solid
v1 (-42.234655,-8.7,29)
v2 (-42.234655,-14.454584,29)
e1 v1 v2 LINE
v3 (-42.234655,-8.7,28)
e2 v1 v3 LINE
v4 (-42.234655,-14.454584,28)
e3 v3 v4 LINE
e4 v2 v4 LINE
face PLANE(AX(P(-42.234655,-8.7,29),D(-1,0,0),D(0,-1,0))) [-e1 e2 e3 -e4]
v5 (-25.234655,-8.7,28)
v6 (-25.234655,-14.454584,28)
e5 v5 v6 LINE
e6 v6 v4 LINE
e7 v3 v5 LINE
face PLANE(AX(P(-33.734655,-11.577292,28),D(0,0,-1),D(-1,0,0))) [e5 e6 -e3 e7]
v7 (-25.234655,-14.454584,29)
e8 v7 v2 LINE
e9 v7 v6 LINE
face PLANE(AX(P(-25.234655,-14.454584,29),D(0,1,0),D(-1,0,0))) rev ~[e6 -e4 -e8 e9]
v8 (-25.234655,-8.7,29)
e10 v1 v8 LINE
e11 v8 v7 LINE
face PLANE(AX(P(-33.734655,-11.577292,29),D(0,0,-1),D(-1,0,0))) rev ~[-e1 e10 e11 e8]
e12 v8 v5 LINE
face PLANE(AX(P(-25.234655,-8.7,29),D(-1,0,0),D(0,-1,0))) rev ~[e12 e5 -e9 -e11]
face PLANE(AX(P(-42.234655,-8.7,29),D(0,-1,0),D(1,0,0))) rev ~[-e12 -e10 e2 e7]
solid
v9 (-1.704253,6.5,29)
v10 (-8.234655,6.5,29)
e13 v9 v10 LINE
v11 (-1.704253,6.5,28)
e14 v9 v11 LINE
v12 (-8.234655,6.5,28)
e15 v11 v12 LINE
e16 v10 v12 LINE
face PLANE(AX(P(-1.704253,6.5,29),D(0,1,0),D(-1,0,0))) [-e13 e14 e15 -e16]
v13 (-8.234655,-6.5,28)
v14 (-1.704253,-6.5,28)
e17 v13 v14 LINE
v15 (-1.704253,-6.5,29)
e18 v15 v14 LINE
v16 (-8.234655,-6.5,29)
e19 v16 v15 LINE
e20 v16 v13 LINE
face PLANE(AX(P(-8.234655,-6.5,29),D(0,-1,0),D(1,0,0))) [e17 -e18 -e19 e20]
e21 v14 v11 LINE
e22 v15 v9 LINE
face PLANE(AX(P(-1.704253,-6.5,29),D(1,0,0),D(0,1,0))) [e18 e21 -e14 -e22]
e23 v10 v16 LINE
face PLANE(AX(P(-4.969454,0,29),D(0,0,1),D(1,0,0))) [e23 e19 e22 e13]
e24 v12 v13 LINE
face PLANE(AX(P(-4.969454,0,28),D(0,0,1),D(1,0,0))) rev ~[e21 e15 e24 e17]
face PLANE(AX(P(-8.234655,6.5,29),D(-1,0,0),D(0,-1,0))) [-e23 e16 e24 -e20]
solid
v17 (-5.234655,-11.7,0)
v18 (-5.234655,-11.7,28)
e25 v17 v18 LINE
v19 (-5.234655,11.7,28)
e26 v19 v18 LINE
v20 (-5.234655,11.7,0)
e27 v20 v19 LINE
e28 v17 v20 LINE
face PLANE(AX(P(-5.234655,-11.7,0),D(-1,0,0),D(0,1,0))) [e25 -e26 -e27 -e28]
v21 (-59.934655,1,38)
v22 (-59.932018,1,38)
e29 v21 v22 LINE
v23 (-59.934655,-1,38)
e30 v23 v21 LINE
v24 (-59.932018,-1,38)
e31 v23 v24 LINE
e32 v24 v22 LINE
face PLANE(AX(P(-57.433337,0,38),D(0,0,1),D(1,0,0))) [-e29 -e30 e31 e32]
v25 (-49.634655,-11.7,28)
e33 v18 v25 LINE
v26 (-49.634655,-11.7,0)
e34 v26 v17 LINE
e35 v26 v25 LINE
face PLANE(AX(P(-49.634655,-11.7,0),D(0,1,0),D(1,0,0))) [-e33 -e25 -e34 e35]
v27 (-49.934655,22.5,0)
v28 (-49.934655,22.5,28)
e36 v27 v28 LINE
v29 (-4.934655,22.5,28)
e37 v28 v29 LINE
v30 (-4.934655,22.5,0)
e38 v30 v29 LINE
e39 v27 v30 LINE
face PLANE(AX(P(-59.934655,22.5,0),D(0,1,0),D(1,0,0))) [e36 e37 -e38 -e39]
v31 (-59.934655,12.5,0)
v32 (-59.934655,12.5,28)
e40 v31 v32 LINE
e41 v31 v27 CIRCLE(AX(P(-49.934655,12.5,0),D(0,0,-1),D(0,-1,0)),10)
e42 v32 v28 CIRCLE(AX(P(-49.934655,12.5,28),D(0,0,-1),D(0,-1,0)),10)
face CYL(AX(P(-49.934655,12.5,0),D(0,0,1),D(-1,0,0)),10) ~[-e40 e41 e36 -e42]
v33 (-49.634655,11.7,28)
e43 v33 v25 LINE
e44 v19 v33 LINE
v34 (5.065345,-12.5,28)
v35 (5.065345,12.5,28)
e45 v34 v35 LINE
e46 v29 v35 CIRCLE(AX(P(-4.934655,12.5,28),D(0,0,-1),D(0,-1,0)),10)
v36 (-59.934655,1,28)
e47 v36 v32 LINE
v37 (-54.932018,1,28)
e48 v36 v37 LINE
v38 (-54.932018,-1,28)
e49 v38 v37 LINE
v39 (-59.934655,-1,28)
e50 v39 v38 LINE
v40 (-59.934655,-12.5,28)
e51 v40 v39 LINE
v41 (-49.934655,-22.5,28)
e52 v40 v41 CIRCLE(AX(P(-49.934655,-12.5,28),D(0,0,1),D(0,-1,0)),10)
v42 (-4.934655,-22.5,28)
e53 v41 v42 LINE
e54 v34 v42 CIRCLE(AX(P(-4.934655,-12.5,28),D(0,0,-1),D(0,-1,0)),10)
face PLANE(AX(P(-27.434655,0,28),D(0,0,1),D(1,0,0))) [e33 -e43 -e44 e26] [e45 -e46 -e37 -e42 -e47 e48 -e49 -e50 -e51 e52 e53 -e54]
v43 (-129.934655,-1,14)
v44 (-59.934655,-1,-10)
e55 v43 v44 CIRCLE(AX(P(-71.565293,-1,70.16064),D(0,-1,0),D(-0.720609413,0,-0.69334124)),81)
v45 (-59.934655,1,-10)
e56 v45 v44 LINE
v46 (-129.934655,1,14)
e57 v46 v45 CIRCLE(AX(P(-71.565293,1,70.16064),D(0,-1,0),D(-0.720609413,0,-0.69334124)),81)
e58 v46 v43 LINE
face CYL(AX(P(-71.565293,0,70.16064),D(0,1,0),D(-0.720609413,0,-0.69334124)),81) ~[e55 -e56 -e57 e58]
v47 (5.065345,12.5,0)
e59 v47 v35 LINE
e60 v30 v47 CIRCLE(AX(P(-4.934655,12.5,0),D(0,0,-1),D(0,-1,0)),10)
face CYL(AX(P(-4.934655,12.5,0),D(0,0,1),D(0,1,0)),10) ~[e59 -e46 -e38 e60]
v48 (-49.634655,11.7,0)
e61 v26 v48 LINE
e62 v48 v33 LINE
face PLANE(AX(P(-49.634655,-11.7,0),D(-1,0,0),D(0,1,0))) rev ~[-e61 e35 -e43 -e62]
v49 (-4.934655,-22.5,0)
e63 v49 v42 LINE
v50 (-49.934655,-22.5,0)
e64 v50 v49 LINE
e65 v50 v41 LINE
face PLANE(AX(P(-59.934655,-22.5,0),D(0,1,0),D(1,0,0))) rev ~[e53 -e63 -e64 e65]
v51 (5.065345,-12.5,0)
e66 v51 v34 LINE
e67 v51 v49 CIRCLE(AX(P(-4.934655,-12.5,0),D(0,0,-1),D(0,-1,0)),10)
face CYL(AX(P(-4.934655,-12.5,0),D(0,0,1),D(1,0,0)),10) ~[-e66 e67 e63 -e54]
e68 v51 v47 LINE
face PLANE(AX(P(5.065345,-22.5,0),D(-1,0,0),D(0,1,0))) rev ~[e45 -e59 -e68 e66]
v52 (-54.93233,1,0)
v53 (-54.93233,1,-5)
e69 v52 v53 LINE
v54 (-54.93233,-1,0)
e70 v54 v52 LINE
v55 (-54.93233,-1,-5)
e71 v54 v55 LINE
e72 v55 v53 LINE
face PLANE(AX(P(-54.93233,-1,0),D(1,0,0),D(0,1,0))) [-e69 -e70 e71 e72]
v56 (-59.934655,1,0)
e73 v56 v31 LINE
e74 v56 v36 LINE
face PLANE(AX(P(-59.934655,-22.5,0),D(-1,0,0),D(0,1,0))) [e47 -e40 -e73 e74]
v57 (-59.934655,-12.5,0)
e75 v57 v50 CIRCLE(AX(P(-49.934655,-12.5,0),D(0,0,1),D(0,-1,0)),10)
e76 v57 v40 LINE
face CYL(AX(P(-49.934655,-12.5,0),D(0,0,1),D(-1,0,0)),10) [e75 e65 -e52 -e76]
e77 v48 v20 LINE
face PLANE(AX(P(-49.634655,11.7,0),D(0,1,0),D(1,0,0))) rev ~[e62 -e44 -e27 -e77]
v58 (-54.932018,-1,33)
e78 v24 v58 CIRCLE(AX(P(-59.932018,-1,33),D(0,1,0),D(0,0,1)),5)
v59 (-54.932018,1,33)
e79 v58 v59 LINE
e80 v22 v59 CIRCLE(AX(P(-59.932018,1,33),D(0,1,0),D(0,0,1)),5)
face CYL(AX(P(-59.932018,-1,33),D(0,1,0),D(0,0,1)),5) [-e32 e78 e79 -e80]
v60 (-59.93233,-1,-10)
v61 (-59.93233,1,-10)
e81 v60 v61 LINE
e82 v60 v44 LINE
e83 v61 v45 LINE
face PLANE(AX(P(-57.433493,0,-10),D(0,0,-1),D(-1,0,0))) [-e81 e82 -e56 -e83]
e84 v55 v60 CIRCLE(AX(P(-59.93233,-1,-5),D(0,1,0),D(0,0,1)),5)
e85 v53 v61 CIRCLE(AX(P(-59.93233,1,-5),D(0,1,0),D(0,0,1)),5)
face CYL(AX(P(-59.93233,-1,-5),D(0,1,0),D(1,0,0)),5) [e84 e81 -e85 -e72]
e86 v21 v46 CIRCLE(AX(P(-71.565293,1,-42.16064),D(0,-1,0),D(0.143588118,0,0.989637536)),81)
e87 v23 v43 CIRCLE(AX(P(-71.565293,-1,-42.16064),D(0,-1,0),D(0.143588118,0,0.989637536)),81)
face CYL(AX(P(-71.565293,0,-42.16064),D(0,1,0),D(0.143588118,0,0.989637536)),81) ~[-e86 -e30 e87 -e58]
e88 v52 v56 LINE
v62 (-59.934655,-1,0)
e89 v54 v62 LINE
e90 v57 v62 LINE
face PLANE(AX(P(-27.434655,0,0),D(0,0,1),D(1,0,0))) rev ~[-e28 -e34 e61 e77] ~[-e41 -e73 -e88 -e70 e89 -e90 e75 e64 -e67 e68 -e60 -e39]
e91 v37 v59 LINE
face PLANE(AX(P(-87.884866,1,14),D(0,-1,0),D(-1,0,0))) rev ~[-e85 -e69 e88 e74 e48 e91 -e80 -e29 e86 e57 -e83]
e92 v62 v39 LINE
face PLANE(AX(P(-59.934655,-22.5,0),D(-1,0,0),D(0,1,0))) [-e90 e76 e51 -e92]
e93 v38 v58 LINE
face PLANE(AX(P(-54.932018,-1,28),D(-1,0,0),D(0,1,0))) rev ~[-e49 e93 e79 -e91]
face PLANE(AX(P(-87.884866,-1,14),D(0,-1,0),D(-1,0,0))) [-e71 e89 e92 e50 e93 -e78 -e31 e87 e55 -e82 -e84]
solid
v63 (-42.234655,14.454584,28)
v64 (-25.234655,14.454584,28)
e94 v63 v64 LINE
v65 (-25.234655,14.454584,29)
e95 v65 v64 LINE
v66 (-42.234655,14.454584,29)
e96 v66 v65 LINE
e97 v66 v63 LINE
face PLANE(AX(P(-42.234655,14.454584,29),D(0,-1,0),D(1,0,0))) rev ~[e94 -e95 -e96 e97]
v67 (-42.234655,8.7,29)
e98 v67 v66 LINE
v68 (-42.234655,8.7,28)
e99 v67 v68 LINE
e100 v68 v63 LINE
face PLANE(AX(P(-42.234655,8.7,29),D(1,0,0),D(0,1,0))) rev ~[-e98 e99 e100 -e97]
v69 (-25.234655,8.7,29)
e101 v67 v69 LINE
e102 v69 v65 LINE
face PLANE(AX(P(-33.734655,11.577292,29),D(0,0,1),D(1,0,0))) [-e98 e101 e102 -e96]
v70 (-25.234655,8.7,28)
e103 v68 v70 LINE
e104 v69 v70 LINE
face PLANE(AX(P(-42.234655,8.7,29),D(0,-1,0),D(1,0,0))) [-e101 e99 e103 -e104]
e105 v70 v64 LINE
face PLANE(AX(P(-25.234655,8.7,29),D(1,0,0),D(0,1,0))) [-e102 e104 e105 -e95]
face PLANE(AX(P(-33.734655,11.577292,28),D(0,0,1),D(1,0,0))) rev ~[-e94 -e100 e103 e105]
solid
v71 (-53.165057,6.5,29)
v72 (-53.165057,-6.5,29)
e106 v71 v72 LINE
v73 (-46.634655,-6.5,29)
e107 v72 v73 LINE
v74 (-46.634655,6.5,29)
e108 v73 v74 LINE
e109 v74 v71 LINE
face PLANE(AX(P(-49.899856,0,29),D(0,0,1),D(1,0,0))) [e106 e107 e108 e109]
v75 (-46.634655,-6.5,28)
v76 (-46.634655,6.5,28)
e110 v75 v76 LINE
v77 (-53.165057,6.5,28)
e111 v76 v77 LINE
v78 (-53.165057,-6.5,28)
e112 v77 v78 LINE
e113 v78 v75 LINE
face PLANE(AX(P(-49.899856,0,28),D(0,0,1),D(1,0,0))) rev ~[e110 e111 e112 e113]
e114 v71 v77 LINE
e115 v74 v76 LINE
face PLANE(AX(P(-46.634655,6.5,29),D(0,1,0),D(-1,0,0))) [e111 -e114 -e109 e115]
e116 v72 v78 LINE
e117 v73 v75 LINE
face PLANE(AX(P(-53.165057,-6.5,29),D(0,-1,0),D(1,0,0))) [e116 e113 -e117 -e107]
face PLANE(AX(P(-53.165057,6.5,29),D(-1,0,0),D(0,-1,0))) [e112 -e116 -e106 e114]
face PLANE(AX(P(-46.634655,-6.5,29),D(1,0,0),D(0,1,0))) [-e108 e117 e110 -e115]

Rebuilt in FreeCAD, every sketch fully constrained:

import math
import FreeCAD as App
import Part
import Sketcher
from FreeCAD import Vector
Q = App.Units.Quantity


def edges_at(feature, points):
    """Names of the edges that pass closest to the given points."""
    edges = feature.Shape.Edges
    near = lambda p: min(range(len(edges)), key=lambda i: edges[i].distToShape(Part.Vertex(*p))[0])
    return sorted({f"Edge{near(p) + 1}" for p in points})


def add_polygon(sketch, points):
    """Adds a closed chain of lines whose ends are joined by coincident constraints."""
    first, n = sketch.GeometryCount, len(points)
    for a, b in zip(points, points[1:] + points[:1]):
        sketch.addGeometry(Part.LineSegment(App.Vector(*a, 0), App.Vector(*b, 0)), False)
    for i in range(n):
        sketch.addConstraint(Sketcher.Constraint("Coincident", first + i, 2, first + (i + 1) % n, 1))

doc = App.newDocument("Part")
body = doc.addObject("PartDesign::Body", "Body")

# Sketch on XY plane
sketch1 = doc.addObject("Sketcher::SketchObject", "Sketch")
body.addObject(sketch1)
sketch1.AttachmentSupport = (doc.XY_Plane, [""])
sketch1.MapMode = "FlatFace"
add_polygon(sketch1, [(-59.934655, 22.5), (-59.934655, -22.5), (5.065345, -22.5), (5.065345, 22.5)])  # lines 0-3
sketch1.addConstraint([
    Sketcher.Constraint("Vertical", 0),
    Sketcher.Constraint("Horizontal", 1),
    Sketcher.Constraint("Vertical", 2),
    Sketcher.Constraint("Horizontal", 3),
    Sketcher.Constraint("DistanceX", 1, 1, 1, 2, Q("65 mm")),
    Sketcher.Constraint("DistanceY", 0, 2, 0, 1, Q("45 mm")),
    Sketcher.Constraint("DistanceY", 0, 2, -1, 1, Q("22.5 mm")),
    Sketcher.Constraint("DistanceX", 0, 2, -1, 1, Q("59.934655 mm")),
])
pad1 = doc.addObject("PartDesign::Pad", "Pad")
body.addObject(pad1)
pad1.Profile = sketch1
pad1.Length = 28

# Sketch on XY plane
sketch2 = doc.addObject("Sketcher::SketchObject", "Sketch001")
body.addObject(sketch2)
sketch2.AttachmentSupport = (doc.XY_Plane, [""])
sketch2.MapMode = "FlatFace"
add_polygon(sketch2, [(-49.634655, 11.7), (-49.634655, -11.7), (-5.234655, -11.7), (-5.234655, 11.7)])  # lines 0-3
sketch2.addConstraint([
    Sketcher.Constraint("Vertical", 0),
    Sketcher.Constraint("Horizontal", 1),
    Sketcher.Constraint("Vertical", 2),
    Sketcher.Constraint("Horizontal", 3),
    Sketcher.Constraint("DistanceX", 1, 1, 1, 2, Q("44.4 mm")),
    Sketcher.Constraint("DistanceY", 0, 2, 0, 1, Q("23.4 mm")),
    Sketcher.Constraint("DistanceY", 0, 2, -1, 1, Q("11.7 mm")),
    Sketcher.Constraint("DistanceX", 0, 2, -1, 1, Q("49.634655 mm")),
])
pocket1 = doc.addObject("PartDesign::Pocket", "Pocket")
body.addObject(pocket1)
pocket1.Profile = sketch2
pocket1.Length = 39
pocket1.Reversed = True
doc.recompute()

fillet = doc.addObject("PartDesign::Fillet", "Fillet")
body.addObject(fillet)
fillet.Base = (pocket1, edges_at(pocket1, [(-59.935, -22.5, 14)]))
fillet.Radius = 10
doc.recompute()

fillet2 = doc.addObject("PartDesign::Fillet", "Fillet001")
body.addObject(fillet2)
fillet2.Base = (fillet, edges_at(fillet, [(-59.935, 22.5, 14)]))
fillet2.Radius = 10
doc.recompute()

fillet3 = doc.addObject("PartDesign::Fillet", "Fillet002")
body.addObject(fillet3)
fillet3.Base = (fillet2, edges_at(fillet2, [(5.065, 22.5, 14)]))
fillet3.Radius = 10
doc.recompute()

fillet4 = doc.addObject("PartDesign::Fillet", "Fillet003")
body.addObject(fillet4)
fillet4.Base = (fillet3, edges_at(fillet3, [(5.065, -22.5, 14)]))
fillet4.Radius = 10

# Sketch on XY plane
sketch3 = doc.addObject("Sketcher::SketchObject", "Sketch002")
body.addObject(sketch3)
sketch3.AttachmentSupport = (doc.XY_Plane, [""])
sketch3.MapMode = "FlatFace"
sketch3.AttachmentOffset = App.Placement(Vector(0, 0, 28), App.Rotation())
add_polygon(sketch3, [(-59.934655, 1), (-59.934655, -1), (-54.932018, -1), (-54.932018, 1)])  # lines 0-3
sketch3.addConstraint([
    Sketcher.Constraint("Vertical", 0),
    Sketcher.Constraint("Horizontal", 1),
    Sketcher.Constraint("Vertical", 2),
    Sketcher.Constraint("Horizontal", 3),
    Sketcher.Constraint("DistanceY", 0, 2, 0, 1, Q("2 mm")),
    Sketcher.Constraint("DistanceY", 0, 2, -1, 1, Q("1 mm")),
    Sketcher.Constraint("DistanceX", 1, 1, 1, 2, Q("5.002637 mm")),
    Sketcher.Constraint("DistanceX", 0, 2, -1, 1, Q("59.934655 mm")),
])
pad2 = doc.addObject("PartDesign::Pad", "Pad001")
body.addObject(pad2)
pad2.Profile = sketch3
pad2.Length = 10

# Sketch on XY plane
sketch4 = doc.addObject("Sketcher::SketchObject", "Sketch003")
body.addObject(sketch4)
sketch4.AttachmentSupport = (doc.XY_Plane, [""])
sketch4.MapMode = "FlatFace"
add_polygon(sketch4, [(-54.93233, 1), (-54.93233, -1), (-59.934655, -1), (-59.934655, 1)])  # lines 0-3
sketch4.addConstraint([
    Sketcher.Constraint("Vertical", 0),
    Sketcher.Constraint("Horizontal", 1),
    Sketcher.Constraint("Vertical", 2),
    Sketcher.Constraint("Horizontal", 3),
    Sketcher.Constraint("DistanceY", 0, 2, 0, 1, Q("2 mm")),
    Sketcher.Constraint("DistanceY", 0, 2, -1, 1, Q("1 mm")),
    Sketcher.Constraint("DistanceX", 1, 2, 1, 1, Q("5.002325 mm")),
    Sketcher.Constraint("DistanceX", 0, 2, -1, 1, Q("54.93233 mm")),
])
pad3 = doc.addObject("PartDesign::Pad", "Pad002")
body.addObject(pad3)
pad3.Profile = sketch4
pad3.Length = 10
pad3.Reversed = True

# Sketch on XZ plane
sketch5 = doc.addObject("Sketcher::SketchObject", "Sketch004")
body.addObject(sketch5)
sketch5.AttachmentSupport = (doc.XZ_Plane, [""])
sketch5.MapMode = "FlatFace"
sketch5.addGeometry([
    Part.LineSegment(Vector(-59.934655, 38, 0), Vector(-59.934655, -10, 0)),
    Part.ArcOfCircle(Part.Circle(Vector(-71.565293, 70.16064, 0), Vector(0, 0, 1), 81), math.radians(-136.104818), math.radians(-81.744471)),
    Part.ArcOfCircle(Part.Circle(Vector(-71.565293, -42.16064, 0), Vector(0, 0, 1), 81), math.radians(81.744471), math.radians(136.104818)),
], False)
sketch5.addConstraint([
    Sketcher.Constraint("Coincident", 0, 2, 1, 2),
    Sketcher.Constraint("Coincident", 1, 1, 2, 2),
    Sketcher.Constraint("Coincident", 2, 1, 0, 1),
    Sketcher.Constraint("Vertical", 0),
    Sketcher.Constraint("Equal", 1, 2),
    Sketcher.Constraint("Vertical", 1, 3, 2, 3),
    Sketcher.Constraint("Radius", 1, Q("81 mm")),
    Sketcher.Constraint("DistanceY", 0, 2, 0, 1, Q("48 mm")),
    Sketcher.Constraint("DistanceY", 0, 2, -1, 1, Q("10 mm")),
    Sketcher.Constraint("DistanceX", 1, 1, 0, 2, Q("70 mm")),
    Sketcher.Constraint("DistanceX", 1, 3, -1, 1, Q("71.565293 mm")),
])
pad4 = doc.addObject("PartDesign::Pad", "Pad003")
body.addObject(pad4)
pad4.Profile = sketch5
pad4.Type = "TwoLengths"
pad4.Length = 1
pad4.Length2 = 1
pad4.Reversed = True
doc.recompute()

fillet5 = doc.addObject("PartDesign::Fillet", "Fillet004")
body.addObject(fillet5)
fillet5.Base = (pad4, edges_at(pad4, [(-54.932, 0, -10)]))
fillet5.Radius = 5
doc.recompute()

fillet6 = doc.addObject("PartDesign::Fillet", "Fillet005")
body.addObject(fillet6)
fillet6.Base = (fillet5, edges_at(fillet5, [(-54.932, 0, 38)]))
fillet6.Radius = 5
body2 = doc.addObject("PartDesign::Body", "Body001")

# Sketch on XY plane
sketch6 = doc.addObject("Sketcher::SketchObject", "Sketch005")
body2.addObject(sketch6)
sketch6.AttachmentSupport = (doc.getObject("XY_Plane001"), [""])
sketch6.MapMode = "FlatFace"
sketch6.AttachmentOffset = App.Placement(Vector(0, 0, 29), App.Rotation())
add_polygon(sketch6, [(-53.165057, 6.5), (-53.165057, -6.5), (-46.634655, -6.5), (-46.634655, 6.5)])  # lines 0-3
sketch6.addConstraint([
    Sketcher.Constraint("Vertical", 0),
    Sketcher.Constraint("Horizontal", 1),
    Sketcher.Constraint("Vertical", 2),
    Sketcher.Constraint("Horizontal", 3),
    Sketcher.Constraint("DistanceY", 0, 2, 0, 1, Q("13 mm")),
    Sketcher.Constraint("DistanceY", 0, 2, -1, 1, Q("6.5 mm")),
    Sketcher.Constraint("DistanceX", 1, 1, 1, 2, Q("6.530402 mm")),
    Sketcher.Constraint("DistanceX", 0, 2, -1, 1, Q("53.165057 mm")),
])
pad5 = doc.addObject("PartDesign::Pad", "Pad004")
body2.addObject(pad5)
pad5.Profile = sketch6
pad5.Length = 1
pad5.Reversed = True
body3 = doc.addObject("PartDesign::Body", "Body002")

# Sketch on XY plane
sketch7 = doc.addObject("Sketcher::SketchObject", "Sketch006")
body3.addObject(sketch7)
sketch7.AttachmentSupport = (doc.getObject("XY_Plane002"), [""])
sketch7.MapMode = "FlatFace"
sketch7.AttachmentOffset = App.Placement(Vector(0, 0, 29), App.Rotation())
add_polygon(sketch7, [(-42.234655, -8.7), (-42.234655, -14.454584), (-25.234655, -14.454584), (-25.234655, -8.7)])  # lines 0-3
sketch7.addConstraint([
    Sketcher.Constraint("Vertical", 0),
    Sketcher.Constraint("Horizontal", 1),
    Sketcher.Constraint("Vertical", 2),
    Sketcher.Constraint("Horizontal", 3),
    Sketcher.Constraint("DistanceX", 1, 1, 1, 2, Q("17 mm")),
    Sketcher.Constraint("DistanceY", 2, 2, -1, 1, Q("8.7 mm")),
    Sketcher.Constraint("DistanceY", 0, 2, 0, 1, Q("5.754584 mm")),
    Sketcher.Constraint("DistanceX", 0, 2, -1, 1, Q("42.234655 mm")),
])
pad6 = doc.addObject("PartDesign::Pad", "Pad005")
body3.addObject(pad6)
pad6.Profile = sketch7
pad6.Length = 1
pad6.Reversed = True
body4 = doc.addObject("PartDesign::Body", "Body003")

# Sketch on XY plane
sketch8 = doc.addObject("Sketcher::SketchObject", "Sketch007")
body4.addObject(sketch8)
sketch8.AttachmentSupport = (doc.getObject("XY_Plane003"), [""])
sketch8.MapMode = "FlatFace"
sketch8.AttachmentOffset = App.Placement(Vector(0, 0, 29), App.Rotation())
add_polygon(sketch8, [(-8.234655, 6.5), (-8.234655, -6.5), (-1.704253, -6.5), (-1.704253, 6.5)])  # lines 0-3
sketch8.addConstraint([
    Sketcher.Constraint("Vertical", 0),
    Sketcher.Constraint("Horizontal", 1),
    Sketcher.Constraint("Vertical", 2),
    Sketcher.Constraint("Horizontal", 3),
    Sketcher.Constraint("DistanceY", 0, 2, 0, 1, Q("13 mm")),
    Sketcher.Constraint("DistanceY", 0, 2, -1, 1, Q("6.5 mm")),
    Sketcher.Constraint("DistanceX", 1, 1, 1, 2, Q("6.530402 mm")),
    Sketcher.Constraint("DistanceX", 0, 2, -1, 1, Q("8.234655 mm")),
])
pad7 = doc.addObject("PartDesign::Pad", "Pad006")
body4.addObject(pad7)
pad7.Profile = sketch8
pad7.Length = 1
pad7.Reversed = True
body5 = doc.addObject("PartDesign::Body", "Body004")

# Sketch on XY plane
sketch9 = doc.addObject("Sketcher::SketchObject", "Sketch008")
body5.addObject(sketch9)
sketch9.AttachmentSupport = (doc.getObject("XY_Plane004"), [""])
sketch9.MapMode = "FlatFace"
sketch9.AttachmentOffset = App.Placement(Vector(0, 0, 29), App.Rotation())
add_polygon(sketch9, [(-42.234655, 14.454584), (-42.234655, 8.7), (-25.234655, 8.7), (-25.234655, 14.454584)])  # lines 0-3
sketch9.addConstraint([
    Sketcher.Constraint("Vertical", 0),
    Sketcher.Constraint("Horizontal", 1),
    Sketcher.Constraint("Vertical", 2),
    Sketcher.Constraint("Horizontal", 3),
    Sketcher.Constraint("DistanceX", 1, 1, 1, 2, Q("17 mm")),
    Sketcher.Constraint("DistanceY", -1, 1, 0, 2, Q("8.7 mm")),
    Sketcher.Constraint("DistanceY", 0, 2, 0, 1, Q("5.754584 mm")),
    Sketcher.Constraint("DistanceX", 0, 2, -1, 1, Q("42.234655 mm")),
])
pad8 = doc.addObject("PartDesign::Pad", "Pad007")
body5.addObject(pad8)
pad8.Profile = sketch9
pad8.Length = 1
pad8.Reversed = True

doc.recompute()
